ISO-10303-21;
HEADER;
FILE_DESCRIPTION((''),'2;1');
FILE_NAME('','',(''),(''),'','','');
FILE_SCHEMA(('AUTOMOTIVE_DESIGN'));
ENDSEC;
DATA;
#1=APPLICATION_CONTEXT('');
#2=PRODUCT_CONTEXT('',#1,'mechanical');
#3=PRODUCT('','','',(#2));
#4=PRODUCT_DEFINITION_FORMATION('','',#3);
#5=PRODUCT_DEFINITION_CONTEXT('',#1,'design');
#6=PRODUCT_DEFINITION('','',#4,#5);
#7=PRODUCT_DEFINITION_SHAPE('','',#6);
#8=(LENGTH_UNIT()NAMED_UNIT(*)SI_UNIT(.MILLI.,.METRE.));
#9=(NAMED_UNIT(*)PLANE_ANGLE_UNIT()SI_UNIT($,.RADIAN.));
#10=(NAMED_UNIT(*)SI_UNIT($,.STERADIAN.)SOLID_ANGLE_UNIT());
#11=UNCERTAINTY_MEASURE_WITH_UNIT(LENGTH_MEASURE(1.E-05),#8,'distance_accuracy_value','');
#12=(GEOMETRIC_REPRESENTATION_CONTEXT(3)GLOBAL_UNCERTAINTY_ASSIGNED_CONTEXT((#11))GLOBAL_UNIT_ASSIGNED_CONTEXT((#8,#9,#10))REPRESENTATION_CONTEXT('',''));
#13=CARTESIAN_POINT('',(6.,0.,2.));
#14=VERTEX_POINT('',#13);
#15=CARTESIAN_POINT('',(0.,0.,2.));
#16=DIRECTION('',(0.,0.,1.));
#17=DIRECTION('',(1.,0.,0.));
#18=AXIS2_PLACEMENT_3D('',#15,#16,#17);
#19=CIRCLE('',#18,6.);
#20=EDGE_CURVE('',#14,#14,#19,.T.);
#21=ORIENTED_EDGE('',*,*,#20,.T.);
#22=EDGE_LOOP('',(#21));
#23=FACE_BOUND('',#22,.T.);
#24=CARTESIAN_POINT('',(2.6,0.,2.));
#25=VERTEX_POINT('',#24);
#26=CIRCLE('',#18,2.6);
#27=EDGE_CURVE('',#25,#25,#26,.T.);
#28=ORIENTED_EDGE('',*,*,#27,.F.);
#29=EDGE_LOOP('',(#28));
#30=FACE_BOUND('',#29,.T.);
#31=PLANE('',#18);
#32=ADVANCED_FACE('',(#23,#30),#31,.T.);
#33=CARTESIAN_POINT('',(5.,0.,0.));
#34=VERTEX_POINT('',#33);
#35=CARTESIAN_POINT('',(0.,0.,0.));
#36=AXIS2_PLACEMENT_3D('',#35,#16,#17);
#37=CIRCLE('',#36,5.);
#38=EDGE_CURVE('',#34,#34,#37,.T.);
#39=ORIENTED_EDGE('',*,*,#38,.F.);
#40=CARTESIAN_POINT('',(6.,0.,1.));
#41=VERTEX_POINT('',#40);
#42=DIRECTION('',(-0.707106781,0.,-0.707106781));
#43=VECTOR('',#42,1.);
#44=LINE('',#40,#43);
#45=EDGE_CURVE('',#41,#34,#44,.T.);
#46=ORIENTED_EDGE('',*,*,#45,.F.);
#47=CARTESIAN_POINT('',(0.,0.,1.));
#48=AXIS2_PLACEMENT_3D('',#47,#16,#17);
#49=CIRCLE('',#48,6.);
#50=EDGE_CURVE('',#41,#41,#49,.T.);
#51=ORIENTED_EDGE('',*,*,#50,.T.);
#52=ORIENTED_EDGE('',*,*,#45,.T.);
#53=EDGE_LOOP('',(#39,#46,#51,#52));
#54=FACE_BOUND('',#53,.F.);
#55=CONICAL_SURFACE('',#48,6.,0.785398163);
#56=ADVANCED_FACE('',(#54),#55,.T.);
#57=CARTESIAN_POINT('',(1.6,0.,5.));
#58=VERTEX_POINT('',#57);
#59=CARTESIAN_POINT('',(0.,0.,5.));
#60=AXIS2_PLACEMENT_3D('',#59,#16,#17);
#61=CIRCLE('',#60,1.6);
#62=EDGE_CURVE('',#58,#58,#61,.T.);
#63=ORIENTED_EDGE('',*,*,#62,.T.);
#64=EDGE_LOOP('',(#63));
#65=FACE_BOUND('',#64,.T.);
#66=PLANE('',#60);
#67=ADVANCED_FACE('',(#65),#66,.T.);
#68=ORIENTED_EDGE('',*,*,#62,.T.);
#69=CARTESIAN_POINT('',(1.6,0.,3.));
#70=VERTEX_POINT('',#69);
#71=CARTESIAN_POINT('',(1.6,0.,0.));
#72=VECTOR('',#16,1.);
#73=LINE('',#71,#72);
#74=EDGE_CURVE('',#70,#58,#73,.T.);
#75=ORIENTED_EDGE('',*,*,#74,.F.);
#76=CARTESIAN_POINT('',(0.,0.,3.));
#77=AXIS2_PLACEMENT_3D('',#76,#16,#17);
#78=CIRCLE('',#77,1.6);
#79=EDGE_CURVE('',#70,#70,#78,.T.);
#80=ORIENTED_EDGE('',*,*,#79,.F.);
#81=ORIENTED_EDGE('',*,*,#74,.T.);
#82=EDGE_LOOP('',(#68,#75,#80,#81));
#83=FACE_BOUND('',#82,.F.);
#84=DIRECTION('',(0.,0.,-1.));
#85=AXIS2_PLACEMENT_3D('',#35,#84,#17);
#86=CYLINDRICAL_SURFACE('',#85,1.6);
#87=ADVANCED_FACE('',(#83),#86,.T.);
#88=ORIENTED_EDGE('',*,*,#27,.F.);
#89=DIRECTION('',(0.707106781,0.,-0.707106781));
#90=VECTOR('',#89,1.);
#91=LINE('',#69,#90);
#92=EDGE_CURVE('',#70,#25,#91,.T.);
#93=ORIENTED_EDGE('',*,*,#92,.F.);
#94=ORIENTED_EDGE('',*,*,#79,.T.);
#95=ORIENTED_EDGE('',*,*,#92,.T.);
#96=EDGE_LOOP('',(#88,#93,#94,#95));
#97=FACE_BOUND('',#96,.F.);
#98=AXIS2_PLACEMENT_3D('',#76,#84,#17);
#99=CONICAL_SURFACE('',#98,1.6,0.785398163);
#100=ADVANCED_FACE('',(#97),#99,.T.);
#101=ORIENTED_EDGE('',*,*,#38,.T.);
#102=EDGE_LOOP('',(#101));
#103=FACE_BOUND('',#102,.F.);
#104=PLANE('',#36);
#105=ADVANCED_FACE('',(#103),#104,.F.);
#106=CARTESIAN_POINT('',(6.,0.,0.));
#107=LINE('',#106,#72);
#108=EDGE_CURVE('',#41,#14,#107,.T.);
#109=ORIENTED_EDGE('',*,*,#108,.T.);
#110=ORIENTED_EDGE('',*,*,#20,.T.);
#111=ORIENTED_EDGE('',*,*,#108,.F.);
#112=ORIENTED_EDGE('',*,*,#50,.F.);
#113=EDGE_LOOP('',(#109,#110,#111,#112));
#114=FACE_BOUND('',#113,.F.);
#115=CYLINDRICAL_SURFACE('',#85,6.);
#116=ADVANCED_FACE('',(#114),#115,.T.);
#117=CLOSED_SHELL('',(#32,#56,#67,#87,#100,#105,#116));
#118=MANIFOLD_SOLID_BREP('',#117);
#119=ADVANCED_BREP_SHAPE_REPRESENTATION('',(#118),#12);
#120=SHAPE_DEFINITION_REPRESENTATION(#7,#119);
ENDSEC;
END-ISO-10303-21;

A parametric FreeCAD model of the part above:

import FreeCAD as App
import Part
import Sketcher
Q = App.Units.Quantity


def edges_at(feature, points):
    """Names of the edges that pass closest to the given points."""
    edges = feature.Shape.Edges
    near = lambda p: min(range(len(edges)), key=lambda i: edges[i].distToShape(Part.Vertex(*p))[0])
    return sorted({f"Edge{near(p) + 1}" for p in points})

doc = App.newDocument("Part")
body = doc.addObject("PartDesign::Body", "Body")

# Sketch on XY plane
sketch1 = doc.addObject("Sketcher::SketchObject", "Sketch")
body.addObject(sketch1)
sketch1.AttachmentSupport = (doc.XY_Plane, [""])
sketch1.MapMode = "FlatFace"
sketch1.addGeometry([
    Part.Circle(App.Vector(0, 0, 0), App.Vector(0, 0, 1), 6),
    Part.Circle(App.Vector(0, 0, 0), App.Vector(0, 0, 1), 1.6),
], False)
sketch1.addConstraint([
    Sketcher.Constraint("Coincident", 0, 3, -1, 1),
    Sketcher.Constraint("Coincident", 1, 3, -1, 1),
    Sketcher.Constraint("Diameter", 0, Q("12 mm")),
    Sketcher.Constraint("Diameter", 1, Q("3.2 mm")),
])
pad1 = doc.addObject("PartDesign::Pad", "Pad")
body.addObject(pad1)
pad1.Profile = sketch1
pad1.Length = 2

# Sketch on XY plane
sketch2 = doc.addObject("Sketcher::SketchObject", "Sketch001")
body.addObject(sketch2)
sketch2.AttachmentSupport = (doc.XY_Plane, [""])
sketch2.MapMode = "FlatFace"
sketch2.addGeometry(Part.Circle(App.Vector(0, 0, 0), App.Vector(0, 0, 1), 1.6), False)
sketch2.addConstraint([
    Sketcher.Constraint("Coincident", 0, 3, -1, 1),
    Sketcher.Constraint("Diameter", 0, Q("3.2 mm")),
])
pad2 = doc.addObject("PartDesign::Pad", "Pad001")
body.addObject(pad2)
pad2.Profile = sketch2
pad2.Length = 5
doc.recompute()

chamfer = doc.addObject("PartDesign::Chamfer", "Chamfer")
body.addObject(chamfer)
chamfer.Base = (pad2, edges_at(pad2, [(-6, 0, 0), (-1.6, 0, 2)]))
chamfer.Size = 1

doc.recompute()
